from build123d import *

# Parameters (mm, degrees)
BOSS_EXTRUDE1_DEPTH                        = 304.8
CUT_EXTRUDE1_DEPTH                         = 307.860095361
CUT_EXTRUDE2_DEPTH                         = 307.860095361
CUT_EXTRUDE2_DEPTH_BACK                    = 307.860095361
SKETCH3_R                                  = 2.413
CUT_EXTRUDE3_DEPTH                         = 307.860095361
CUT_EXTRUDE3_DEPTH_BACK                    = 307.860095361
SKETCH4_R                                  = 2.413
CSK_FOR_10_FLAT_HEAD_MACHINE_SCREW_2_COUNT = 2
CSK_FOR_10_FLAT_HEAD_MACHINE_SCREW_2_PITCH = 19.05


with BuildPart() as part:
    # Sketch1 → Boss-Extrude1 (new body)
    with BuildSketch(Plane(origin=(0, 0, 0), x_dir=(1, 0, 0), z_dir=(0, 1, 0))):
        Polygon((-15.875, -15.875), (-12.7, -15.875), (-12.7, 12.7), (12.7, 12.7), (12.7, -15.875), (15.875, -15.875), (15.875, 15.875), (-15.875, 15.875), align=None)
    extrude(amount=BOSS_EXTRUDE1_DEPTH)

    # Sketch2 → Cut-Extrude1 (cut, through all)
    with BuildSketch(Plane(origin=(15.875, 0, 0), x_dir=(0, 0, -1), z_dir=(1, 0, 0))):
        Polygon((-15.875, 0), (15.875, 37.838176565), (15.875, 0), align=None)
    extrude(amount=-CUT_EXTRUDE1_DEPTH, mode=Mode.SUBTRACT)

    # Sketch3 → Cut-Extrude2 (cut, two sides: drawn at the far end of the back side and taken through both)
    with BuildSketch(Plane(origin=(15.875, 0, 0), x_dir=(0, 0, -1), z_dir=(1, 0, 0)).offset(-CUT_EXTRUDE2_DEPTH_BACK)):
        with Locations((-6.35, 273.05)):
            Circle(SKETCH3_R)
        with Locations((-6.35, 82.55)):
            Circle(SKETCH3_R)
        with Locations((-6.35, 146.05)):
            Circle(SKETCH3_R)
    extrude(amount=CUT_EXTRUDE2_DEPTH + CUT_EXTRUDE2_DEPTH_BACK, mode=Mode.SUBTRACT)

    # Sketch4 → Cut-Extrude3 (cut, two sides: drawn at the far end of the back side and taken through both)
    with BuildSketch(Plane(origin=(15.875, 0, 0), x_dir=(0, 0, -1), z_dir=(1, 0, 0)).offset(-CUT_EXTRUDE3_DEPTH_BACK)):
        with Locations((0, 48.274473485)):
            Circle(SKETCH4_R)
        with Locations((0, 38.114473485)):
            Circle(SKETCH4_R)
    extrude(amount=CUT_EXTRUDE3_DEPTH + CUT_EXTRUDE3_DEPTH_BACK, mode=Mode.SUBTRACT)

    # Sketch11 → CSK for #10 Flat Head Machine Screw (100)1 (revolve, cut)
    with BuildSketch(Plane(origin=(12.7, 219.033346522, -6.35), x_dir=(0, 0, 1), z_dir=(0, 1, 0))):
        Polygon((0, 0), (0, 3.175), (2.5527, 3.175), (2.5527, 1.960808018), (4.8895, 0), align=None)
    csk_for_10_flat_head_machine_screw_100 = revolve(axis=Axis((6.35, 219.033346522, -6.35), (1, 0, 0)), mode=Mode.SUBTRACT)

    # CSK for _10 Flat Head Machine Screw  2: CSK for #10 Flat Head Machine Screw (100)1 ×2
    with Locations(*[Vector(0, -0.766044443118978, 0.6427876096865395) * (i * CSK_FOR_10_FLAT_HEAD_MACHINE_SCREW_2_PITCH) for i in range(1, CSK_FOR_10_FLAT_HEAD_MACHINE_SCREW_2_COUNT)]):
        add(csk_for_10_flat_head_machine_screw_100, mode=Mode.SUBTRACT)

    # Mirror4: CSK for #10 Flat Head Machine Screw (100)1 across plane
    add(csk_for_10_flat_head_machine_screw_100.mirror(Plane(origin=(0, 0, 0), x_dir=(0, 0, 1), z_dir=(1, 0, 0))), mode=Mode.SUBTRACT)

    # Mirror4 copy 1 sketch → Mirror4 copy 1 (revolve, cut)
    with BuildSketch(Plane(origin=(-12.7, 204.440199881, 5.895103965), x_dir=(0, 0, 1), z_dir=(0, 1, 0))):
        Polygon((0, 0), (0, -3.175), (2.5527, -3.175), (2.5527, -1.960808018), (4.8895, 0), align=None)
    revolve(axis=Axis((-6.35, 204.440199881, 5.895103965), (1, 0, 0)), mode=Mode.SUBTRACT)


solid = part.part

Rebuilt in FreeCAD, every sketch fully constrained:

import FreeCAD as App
import Part
import Sketcher
from FreeCAD import Vector
Q = App.Units.Quantity

doc = App.newDocument("Part")
body = doc.addObject("PartDesign::Body", "Body")

sketch1 = body.newObject("Sketcher::SketchObject", "Sketch")
sketch1.AttachmentSupport = (doc.getObject("XZ_Plane"), [""])
sketch1.MapMode = "FlatFace"
sketch1.addGeometry([
    Part.LineSegment(Vector(-15.875, 15.875, 0), Vector(-12.7, 15.875, 0)),
    Part.LineSegment(Vector(-12.7, 15.875, 0), Vector(-12.7, -12.7, 0)),
    Part.LineSegment(Vector(-12.7, -12.7, 0), Vector(12.7, -12.7, 0)),
    Part.LineSegment(Vector(12.7, -12.7, 0), Vector(12.7, 15.875, 0)),
    Part.LineSegment(Vector(12.7, 15.875, 0), Vector(15.875, 15.875, 0)),
    Part.LineSegment(Vector(15.875, 15.875, 0), Vector(15.875, -15.875, 0)),
    Part.LineSegment(Vector(15.875, -15.875, 0), Vector(-15.875, -15.875, 0)),
    Part.LineSegment(Vector(-15.875, -15.875, 0), Vector(-15.875, 15.875, 0)),
], False)
sketch1.addConstraint([
    Sketcher.Constraint("Coincident", 0, 2, 1, 1),
    Sketcher.Constraint("Coincident", 1, 2, 2, 1),
    Sketcher.Constraint("Coincident", 2, 2, 3, 1),
    Sketcher.Constraint("Coincident", 3, 2, 4, 1),
    Sketcher.Constraint("Coincident", 4, 2, 5, 1),
    Sketcher.Constraint("Coincident", 5, 2, 6, 1),
    Sketcher.Constraint("Coincident", 6, 2, 7, 1),
    Sketcher.Constraint("Coincident", 7, 2, 0, 1),
    Sketcher.Constraint("Horizontal", 0),
    Sketcher.Constraint("Vertical", 1),
    Sketcher.Constraint("Horizontal", 2),
    Sketcher.Constraint("Vertical", 3),
    Sketcher.Constraint("Horizontal", 4),
    Sketcher.Constraint("Vertical", 5),
    Sketcher.Constraint("Horizontal", 6),
    Sketcher.Constraint("Vertical", 7),
    Sketcher.Constraint("Symmetric", 4, 2, 6, 2, -1, 1),
    Sketcher.Constraint("Symmetric", 0, 2, 3, 2, -2),
    Sketcher.Constraint("Equal", 6, 5),
    Sketcher.Constraint("DistanceX", 2, 1, 2, 2, Q("1 in")),
    Sketcher.Constraint("DistanceX", 6, 2, 6, 1, Q("1.25 in")),
    Sketcher.Constraint("DistanceY", 1, 2, -1, 1, Q("0.5 in")),
])
pad1 = body.newObject("PartDesign::Pad", "Pad")
pad1.Profile = sketch1
pad1.Length = Q("12 in")
pad1.Reversed = True

sketch2 = body.newObject("Sketcher::SketchObject", "Sketch001")
sketch2.AttachmentSupport = (doc.getObject("YZ_Plane"), [""])
sketch2.MapMode = "FlatFace"
sketch2.AttachmentOffset = App.Placement(Vector(0, 0, 0.625 * 25.4), App.Rotation())
sketch2.addGeometry([
    Part.LineSegment(Vector(37.838177, -15.875, 0), Vector(0, 15.875, 0)),
    Part.LineSegment(Vector(0, 15.875, 0), Vector(0, -15.875, 0)),
    Part.LineSegment(Vector(0, -15.875, 0), Vector(37.838177, -15.875, 0)),
], False)
sketch2.addConstraint([
    Sketcher.Constraint("Coincident", 0, 2, 1, 1),
    Sketcher.Constraint("Coincident", 1, 2, 2, 1),
    Sketcher.Constraint("Coincident", 2, 2, 0, 1),
    Sketcher.Constraint("Vertical", 1),
    Sketcher.Constraint("Horizontal", 2),
    Sketcher.Constraint("Symmetric", 0, 2, 1, 2, -1, 1),
    Sketcher.Constraint("Angle", 0, Q("140 deg")),
    Sketcher.Constraint("DistanceY", 1, 2, 1, 1, Q("1.25 in")),
])
pocket1 = body.newObject("PartDesign::Pocket", "Pocket")
pocket1.Profile = sketch2
pocket1.Type = "ThroughAll"

sketch3 = body.newObject("Sketcher::SketchObject", "Sketch002")
sketch3.AttachmentSupport = (doc.getObject("YZ_Plane"), [""])
sketch3.MapMode = "FlatFace"
sketch3.AttachmentOffset = App.Placement(Vector(0, 0, 0.625 * 25.4), App.Rotation())
sketch3.addGeometry([
    Part.Circle(Vector(273.05, 6.35, 0), Vector(0, 0, 1), 2.413),
    Part.Circle(Vector(82.55, 6.35, 0), Vector(0, 0, 1), 2.413),
    Part.Circle(Vector(146.05, 6.35, 0), Vector(0, 0, 1), 2.413),
], False)
sketch3.addConstraint([
    Sketcher.Constraint("Equal", 0, 1),
    Sketcher.Constraint("Equal", 1, 2),
    Sketcher.Constraint("Horizontal", 0, 3, 1, 3),
    Sketcher.Constraint("Horizontal", 1, 3, 2, 3),
    Sketcher.Constraint("Diameter", 0, Q("0.19 in")),
    Sketcher.Constraint("DistanceX", 2, 3, 0, 3, Q("5 in")),
    Sketcher.Constraint("DistanceX", 1, 3, 0, 3, Q("7.5 in")),
    Sketcher.Constraint("DistanceX", -1, 1, 0, 3, Q("10.75 in")),
    Sketcher.Constraint("DistanceY", -1, 1, 0, 3, Q("0.25 in")),
])
pocket2 = body.newObject("PartDesign::Pocket", "Pocket001")
pocket2.Profile = sketch3
pocket2.Type = "ThroughAll"
pocket2.Midplane = True

sketch4 = body.newObject("Sketcher::SketchObject", "Sketch003")
sketch4.AttachmentSupport = (doc.getObject("YZ_Plane"), [""])
sketch4.MapMode = "FlatFace"
sketch4.AttachmentOffset = App.Placement(Vector(0, 0, 0.625 * 25.4), App.Rotation())
sketch4.addGeometry([
    Part.Circle(Vector(48.274473, 0, 0), Vector(0, 0, 1), 2.413),
    Part.Circle(Vector(38.114473, 0, 0), Vector(0, 0, 1), 2.413),
], False)
sketch4.addConstraint([
    Sketcher.Constraint("Equal", 0, 1),
    Sketcher.Constraint("PointOnObject", 0, 3, -1),
    Sketcher.Constraint("PointOnObject", 1, 3, -1),
    Sketcher.Constraint("Diameter", 0, Q("0.19 in")),
    Sketcher.Constraint("DistanceX", 1, 3, 0, 3, Q("0.4 in")),
    Sketcher.Constraint("DistanceX", -1, 1, 0, 3, Q("48.274473 mm")),
])
pocket3 = body.newObject("PartDesign::Pocket", "Pocket002")
pocket3.Profile = sketch4
pocket3.Type = "ThroughAll"
pocket3.Midplane = True

sketch5 = body.newObject("Sketcher::SketchObject", "Sketch004")
sketch5.AttachmentSupport = (doc.getObject("XZ_Plane"), [""])
sketch5.MapMode = "FlatFace"
sketch5.AttachmentOffset = App.Placement(Vector(0, 0, -219.033347), App.Rotation())
sketch5.addGeometry([
    Part.LineSegment(Vector(15.875, -6.35, 0), Vector(12.7, -6.35, 0)),
    Part.LineSegment(Vector(12.7, -6.35, 0), Vector(12.7, -1.4605, 0)),
    Part.LineSegment(Vector(12.7, -1.4605, 0), Vector(14.660808, -3.7973, 0)),
    Part.LineSegment(Vector(14.660808, -3.7973, 0), Vector(15.875, -3.7973, 0)),
    Part.LineSegment(Vector(15.875, -3.7973, 0), Vector(15.875, -6.35, 0)),
], False)
sketch5.addGeometry(Part.LineSegment(Vector(12.7, -6.35, 0), Vector(15.875, -6.35, 0)), True)
sketch5.addConstraint([
    Sketcher.Constraint("Coincident", 0, 2, 1, 1),
    Sketcher.Constraint("Coincident", 1, 2, 2, 1),
    Sketcher.Constraint("Coincident", 2, 2, 3, 1),
    Sketcher.Constraint("Coincident", 3, 2, 4, 1),
    Sketcher.Constraint("Coincident", 4, 2, 0, 1),
    Sketcher.Constraint("Horizontal", 0),
    Sketcher.Constraint("Vertical", 1),
    Sketcher.Constraint("Horizontal", 3),
    Sketcher.Constraint("Vertical", 4),
    Sketcher.Constraint("Horizontal", 5),
    Sketcher.Constraint("Coincident", 5, 1, 0, 2),
    Sketcher.Constraint("Vertical", 3, 2, 5, 2),
    Sketcher.Constraint("Angle", 2, Q("-50 deg")),
    Sketcher.Constraint("DistanceX", -1, 1, 0, 2, Q("0.5 in")),
    Sketcher.Constraint("DistanceX", 0, 2, 0, 1, Q("0.125 in")),
    Sketcher.Constraint("DistanceY", 0, 2, -1, 1, Q("0.25 in")),
    Sketcher.Constraint("DistanceY", 1, 1, 1, 2, Q("0.1925 in")),
    Sketcher.Constraint("DistanceY", 4, 2, 4, 1, Q("0.1005 in")),
])
groove = body.newObject("PartDesign::Groove", "Groove")
groove.Profile = sketch5
groove.ReferenceAxis = (sketch5, ["Axis0"])
groove.Angle = 360
doc.recompute()

datumline = body.newObject("PartDesign::Line", "DatumLine")
datumline.Placement = App.Placement(Vector(0, 0, 0), App.Rotation(Vector(0, 0, 1), Vector(0, -0.766044443, 0.64278761)))
linearpattern = body.newObject("PartDesign::LinearPattern", "LinearPattern")
linearpattern.Originals = [groove]
linearpattern.Direction = (datumline, [""])
linearpattern.Mode = "offset"
linearpattern.Offset = Q("0.75 in")
linearpattern.Occurrences = 2
body.Tip = linearpattern
doc.recompute()

mirrored = body.newObject("PartDesign::Mirrored", "Mirrored")
mirrored.Originals = [groove]
mirrored.MirrorPlane = (doc.getObject("YZ_Plane"), [""])
body.Tip = mirrored

sketch6 = body.newObject("Sketcher::SketchObject", "Sketch005")
sketch6.AttachmentSupport = (doc.getObject("XZ_Plane"), [""])
sketch6.MapMode = "FlatFace"
sketch6.AttachmentOffset = App.Placement(Vector(0, 0, -204.4402), App.Rotation())
sketch6.addGeometry([
    Part.LineSegment(Vector(-12.7, 5.895104, 0), Vector(-15.875, 5.895104, 0)),
    Part.LineSegment(Vector(-15.875, 5.895104, 0), Vector(-15.875, 8.447804, 0)),
    Part.LineSegment(Vector(-15.875, 8.447804, 0), Vector(-14.660808, 8.447804, 0)),
    Part.LineSegment(Vector(-14.660808, 8.447804, 0), Vector(-12.7, 10.784604, 0)),
    Part.LineSegment(Vector(-12.7, 10.784604, 0), Vector(-12.7, 5.895104, 0)),
], False)
sketch6.addGeometry(Part.LineSegment(Vector(-15.875, 5.895104, 0), Vector(-12.7, 5.895104, 0)), True)
sketch6.addConstraint([
    Sketcher.Constraint("Coincident", 0, 2, 1, 1),
    Sketcher.Constraint("Coincident", 1, 2, 2, 1),
    Sketcher.Constraint("Coincident", 2, 2, 3, 1),
    Sketcher.Constraint("Coincident", 3, 2, 4, 1),
    Sketcher.Constraint("Coincident", 4, 2, 0, 1),
    Sketcher.Constraint("Horizontal", 0),
    Sketcher.Constraint("Vertical", 1),
    Sketcher.Constraint("Horizontal", 2),
    Sketcher.Constraint("Vertical", 4),
    Sketcher.Constraint("Horizontal", 5),
    Sketcher.Constraint("Coincident", 5, 1, 0, 2),
    Sketcher.Constraint("Vertical", 3, 2, 5, 2),
    Sketcher.Constraint("Angle", 3, Q("50 deg")),
    Sketcher.Constraint("DistanceX", 3, 2, -1, 1, Q("0.5 in")),
    Sketcher.Constraint("DistanceX", 0, 2, 0, 1, Q("0.125 in")),
    Sketcher.Constraint("DistanceY", 1, 1, 1, 2, Q("0.1005 in")),
    Sketcher.Constraint("DistanceY", 4, 2, 4, 1, Q("0.1925 in")),
    Sketcher.Constraint("DistanceY", -1, 1, 0, 2, Q("5.895104 mm")),
])
groove2 = body.newObject("PartDesign::Groove", "Groove001")
groove2.Profile = sketch6
groove2.ReferenceAxis = (sketch6, ["Axis0"])
groove2.Angle = 360

doc.recompute()
